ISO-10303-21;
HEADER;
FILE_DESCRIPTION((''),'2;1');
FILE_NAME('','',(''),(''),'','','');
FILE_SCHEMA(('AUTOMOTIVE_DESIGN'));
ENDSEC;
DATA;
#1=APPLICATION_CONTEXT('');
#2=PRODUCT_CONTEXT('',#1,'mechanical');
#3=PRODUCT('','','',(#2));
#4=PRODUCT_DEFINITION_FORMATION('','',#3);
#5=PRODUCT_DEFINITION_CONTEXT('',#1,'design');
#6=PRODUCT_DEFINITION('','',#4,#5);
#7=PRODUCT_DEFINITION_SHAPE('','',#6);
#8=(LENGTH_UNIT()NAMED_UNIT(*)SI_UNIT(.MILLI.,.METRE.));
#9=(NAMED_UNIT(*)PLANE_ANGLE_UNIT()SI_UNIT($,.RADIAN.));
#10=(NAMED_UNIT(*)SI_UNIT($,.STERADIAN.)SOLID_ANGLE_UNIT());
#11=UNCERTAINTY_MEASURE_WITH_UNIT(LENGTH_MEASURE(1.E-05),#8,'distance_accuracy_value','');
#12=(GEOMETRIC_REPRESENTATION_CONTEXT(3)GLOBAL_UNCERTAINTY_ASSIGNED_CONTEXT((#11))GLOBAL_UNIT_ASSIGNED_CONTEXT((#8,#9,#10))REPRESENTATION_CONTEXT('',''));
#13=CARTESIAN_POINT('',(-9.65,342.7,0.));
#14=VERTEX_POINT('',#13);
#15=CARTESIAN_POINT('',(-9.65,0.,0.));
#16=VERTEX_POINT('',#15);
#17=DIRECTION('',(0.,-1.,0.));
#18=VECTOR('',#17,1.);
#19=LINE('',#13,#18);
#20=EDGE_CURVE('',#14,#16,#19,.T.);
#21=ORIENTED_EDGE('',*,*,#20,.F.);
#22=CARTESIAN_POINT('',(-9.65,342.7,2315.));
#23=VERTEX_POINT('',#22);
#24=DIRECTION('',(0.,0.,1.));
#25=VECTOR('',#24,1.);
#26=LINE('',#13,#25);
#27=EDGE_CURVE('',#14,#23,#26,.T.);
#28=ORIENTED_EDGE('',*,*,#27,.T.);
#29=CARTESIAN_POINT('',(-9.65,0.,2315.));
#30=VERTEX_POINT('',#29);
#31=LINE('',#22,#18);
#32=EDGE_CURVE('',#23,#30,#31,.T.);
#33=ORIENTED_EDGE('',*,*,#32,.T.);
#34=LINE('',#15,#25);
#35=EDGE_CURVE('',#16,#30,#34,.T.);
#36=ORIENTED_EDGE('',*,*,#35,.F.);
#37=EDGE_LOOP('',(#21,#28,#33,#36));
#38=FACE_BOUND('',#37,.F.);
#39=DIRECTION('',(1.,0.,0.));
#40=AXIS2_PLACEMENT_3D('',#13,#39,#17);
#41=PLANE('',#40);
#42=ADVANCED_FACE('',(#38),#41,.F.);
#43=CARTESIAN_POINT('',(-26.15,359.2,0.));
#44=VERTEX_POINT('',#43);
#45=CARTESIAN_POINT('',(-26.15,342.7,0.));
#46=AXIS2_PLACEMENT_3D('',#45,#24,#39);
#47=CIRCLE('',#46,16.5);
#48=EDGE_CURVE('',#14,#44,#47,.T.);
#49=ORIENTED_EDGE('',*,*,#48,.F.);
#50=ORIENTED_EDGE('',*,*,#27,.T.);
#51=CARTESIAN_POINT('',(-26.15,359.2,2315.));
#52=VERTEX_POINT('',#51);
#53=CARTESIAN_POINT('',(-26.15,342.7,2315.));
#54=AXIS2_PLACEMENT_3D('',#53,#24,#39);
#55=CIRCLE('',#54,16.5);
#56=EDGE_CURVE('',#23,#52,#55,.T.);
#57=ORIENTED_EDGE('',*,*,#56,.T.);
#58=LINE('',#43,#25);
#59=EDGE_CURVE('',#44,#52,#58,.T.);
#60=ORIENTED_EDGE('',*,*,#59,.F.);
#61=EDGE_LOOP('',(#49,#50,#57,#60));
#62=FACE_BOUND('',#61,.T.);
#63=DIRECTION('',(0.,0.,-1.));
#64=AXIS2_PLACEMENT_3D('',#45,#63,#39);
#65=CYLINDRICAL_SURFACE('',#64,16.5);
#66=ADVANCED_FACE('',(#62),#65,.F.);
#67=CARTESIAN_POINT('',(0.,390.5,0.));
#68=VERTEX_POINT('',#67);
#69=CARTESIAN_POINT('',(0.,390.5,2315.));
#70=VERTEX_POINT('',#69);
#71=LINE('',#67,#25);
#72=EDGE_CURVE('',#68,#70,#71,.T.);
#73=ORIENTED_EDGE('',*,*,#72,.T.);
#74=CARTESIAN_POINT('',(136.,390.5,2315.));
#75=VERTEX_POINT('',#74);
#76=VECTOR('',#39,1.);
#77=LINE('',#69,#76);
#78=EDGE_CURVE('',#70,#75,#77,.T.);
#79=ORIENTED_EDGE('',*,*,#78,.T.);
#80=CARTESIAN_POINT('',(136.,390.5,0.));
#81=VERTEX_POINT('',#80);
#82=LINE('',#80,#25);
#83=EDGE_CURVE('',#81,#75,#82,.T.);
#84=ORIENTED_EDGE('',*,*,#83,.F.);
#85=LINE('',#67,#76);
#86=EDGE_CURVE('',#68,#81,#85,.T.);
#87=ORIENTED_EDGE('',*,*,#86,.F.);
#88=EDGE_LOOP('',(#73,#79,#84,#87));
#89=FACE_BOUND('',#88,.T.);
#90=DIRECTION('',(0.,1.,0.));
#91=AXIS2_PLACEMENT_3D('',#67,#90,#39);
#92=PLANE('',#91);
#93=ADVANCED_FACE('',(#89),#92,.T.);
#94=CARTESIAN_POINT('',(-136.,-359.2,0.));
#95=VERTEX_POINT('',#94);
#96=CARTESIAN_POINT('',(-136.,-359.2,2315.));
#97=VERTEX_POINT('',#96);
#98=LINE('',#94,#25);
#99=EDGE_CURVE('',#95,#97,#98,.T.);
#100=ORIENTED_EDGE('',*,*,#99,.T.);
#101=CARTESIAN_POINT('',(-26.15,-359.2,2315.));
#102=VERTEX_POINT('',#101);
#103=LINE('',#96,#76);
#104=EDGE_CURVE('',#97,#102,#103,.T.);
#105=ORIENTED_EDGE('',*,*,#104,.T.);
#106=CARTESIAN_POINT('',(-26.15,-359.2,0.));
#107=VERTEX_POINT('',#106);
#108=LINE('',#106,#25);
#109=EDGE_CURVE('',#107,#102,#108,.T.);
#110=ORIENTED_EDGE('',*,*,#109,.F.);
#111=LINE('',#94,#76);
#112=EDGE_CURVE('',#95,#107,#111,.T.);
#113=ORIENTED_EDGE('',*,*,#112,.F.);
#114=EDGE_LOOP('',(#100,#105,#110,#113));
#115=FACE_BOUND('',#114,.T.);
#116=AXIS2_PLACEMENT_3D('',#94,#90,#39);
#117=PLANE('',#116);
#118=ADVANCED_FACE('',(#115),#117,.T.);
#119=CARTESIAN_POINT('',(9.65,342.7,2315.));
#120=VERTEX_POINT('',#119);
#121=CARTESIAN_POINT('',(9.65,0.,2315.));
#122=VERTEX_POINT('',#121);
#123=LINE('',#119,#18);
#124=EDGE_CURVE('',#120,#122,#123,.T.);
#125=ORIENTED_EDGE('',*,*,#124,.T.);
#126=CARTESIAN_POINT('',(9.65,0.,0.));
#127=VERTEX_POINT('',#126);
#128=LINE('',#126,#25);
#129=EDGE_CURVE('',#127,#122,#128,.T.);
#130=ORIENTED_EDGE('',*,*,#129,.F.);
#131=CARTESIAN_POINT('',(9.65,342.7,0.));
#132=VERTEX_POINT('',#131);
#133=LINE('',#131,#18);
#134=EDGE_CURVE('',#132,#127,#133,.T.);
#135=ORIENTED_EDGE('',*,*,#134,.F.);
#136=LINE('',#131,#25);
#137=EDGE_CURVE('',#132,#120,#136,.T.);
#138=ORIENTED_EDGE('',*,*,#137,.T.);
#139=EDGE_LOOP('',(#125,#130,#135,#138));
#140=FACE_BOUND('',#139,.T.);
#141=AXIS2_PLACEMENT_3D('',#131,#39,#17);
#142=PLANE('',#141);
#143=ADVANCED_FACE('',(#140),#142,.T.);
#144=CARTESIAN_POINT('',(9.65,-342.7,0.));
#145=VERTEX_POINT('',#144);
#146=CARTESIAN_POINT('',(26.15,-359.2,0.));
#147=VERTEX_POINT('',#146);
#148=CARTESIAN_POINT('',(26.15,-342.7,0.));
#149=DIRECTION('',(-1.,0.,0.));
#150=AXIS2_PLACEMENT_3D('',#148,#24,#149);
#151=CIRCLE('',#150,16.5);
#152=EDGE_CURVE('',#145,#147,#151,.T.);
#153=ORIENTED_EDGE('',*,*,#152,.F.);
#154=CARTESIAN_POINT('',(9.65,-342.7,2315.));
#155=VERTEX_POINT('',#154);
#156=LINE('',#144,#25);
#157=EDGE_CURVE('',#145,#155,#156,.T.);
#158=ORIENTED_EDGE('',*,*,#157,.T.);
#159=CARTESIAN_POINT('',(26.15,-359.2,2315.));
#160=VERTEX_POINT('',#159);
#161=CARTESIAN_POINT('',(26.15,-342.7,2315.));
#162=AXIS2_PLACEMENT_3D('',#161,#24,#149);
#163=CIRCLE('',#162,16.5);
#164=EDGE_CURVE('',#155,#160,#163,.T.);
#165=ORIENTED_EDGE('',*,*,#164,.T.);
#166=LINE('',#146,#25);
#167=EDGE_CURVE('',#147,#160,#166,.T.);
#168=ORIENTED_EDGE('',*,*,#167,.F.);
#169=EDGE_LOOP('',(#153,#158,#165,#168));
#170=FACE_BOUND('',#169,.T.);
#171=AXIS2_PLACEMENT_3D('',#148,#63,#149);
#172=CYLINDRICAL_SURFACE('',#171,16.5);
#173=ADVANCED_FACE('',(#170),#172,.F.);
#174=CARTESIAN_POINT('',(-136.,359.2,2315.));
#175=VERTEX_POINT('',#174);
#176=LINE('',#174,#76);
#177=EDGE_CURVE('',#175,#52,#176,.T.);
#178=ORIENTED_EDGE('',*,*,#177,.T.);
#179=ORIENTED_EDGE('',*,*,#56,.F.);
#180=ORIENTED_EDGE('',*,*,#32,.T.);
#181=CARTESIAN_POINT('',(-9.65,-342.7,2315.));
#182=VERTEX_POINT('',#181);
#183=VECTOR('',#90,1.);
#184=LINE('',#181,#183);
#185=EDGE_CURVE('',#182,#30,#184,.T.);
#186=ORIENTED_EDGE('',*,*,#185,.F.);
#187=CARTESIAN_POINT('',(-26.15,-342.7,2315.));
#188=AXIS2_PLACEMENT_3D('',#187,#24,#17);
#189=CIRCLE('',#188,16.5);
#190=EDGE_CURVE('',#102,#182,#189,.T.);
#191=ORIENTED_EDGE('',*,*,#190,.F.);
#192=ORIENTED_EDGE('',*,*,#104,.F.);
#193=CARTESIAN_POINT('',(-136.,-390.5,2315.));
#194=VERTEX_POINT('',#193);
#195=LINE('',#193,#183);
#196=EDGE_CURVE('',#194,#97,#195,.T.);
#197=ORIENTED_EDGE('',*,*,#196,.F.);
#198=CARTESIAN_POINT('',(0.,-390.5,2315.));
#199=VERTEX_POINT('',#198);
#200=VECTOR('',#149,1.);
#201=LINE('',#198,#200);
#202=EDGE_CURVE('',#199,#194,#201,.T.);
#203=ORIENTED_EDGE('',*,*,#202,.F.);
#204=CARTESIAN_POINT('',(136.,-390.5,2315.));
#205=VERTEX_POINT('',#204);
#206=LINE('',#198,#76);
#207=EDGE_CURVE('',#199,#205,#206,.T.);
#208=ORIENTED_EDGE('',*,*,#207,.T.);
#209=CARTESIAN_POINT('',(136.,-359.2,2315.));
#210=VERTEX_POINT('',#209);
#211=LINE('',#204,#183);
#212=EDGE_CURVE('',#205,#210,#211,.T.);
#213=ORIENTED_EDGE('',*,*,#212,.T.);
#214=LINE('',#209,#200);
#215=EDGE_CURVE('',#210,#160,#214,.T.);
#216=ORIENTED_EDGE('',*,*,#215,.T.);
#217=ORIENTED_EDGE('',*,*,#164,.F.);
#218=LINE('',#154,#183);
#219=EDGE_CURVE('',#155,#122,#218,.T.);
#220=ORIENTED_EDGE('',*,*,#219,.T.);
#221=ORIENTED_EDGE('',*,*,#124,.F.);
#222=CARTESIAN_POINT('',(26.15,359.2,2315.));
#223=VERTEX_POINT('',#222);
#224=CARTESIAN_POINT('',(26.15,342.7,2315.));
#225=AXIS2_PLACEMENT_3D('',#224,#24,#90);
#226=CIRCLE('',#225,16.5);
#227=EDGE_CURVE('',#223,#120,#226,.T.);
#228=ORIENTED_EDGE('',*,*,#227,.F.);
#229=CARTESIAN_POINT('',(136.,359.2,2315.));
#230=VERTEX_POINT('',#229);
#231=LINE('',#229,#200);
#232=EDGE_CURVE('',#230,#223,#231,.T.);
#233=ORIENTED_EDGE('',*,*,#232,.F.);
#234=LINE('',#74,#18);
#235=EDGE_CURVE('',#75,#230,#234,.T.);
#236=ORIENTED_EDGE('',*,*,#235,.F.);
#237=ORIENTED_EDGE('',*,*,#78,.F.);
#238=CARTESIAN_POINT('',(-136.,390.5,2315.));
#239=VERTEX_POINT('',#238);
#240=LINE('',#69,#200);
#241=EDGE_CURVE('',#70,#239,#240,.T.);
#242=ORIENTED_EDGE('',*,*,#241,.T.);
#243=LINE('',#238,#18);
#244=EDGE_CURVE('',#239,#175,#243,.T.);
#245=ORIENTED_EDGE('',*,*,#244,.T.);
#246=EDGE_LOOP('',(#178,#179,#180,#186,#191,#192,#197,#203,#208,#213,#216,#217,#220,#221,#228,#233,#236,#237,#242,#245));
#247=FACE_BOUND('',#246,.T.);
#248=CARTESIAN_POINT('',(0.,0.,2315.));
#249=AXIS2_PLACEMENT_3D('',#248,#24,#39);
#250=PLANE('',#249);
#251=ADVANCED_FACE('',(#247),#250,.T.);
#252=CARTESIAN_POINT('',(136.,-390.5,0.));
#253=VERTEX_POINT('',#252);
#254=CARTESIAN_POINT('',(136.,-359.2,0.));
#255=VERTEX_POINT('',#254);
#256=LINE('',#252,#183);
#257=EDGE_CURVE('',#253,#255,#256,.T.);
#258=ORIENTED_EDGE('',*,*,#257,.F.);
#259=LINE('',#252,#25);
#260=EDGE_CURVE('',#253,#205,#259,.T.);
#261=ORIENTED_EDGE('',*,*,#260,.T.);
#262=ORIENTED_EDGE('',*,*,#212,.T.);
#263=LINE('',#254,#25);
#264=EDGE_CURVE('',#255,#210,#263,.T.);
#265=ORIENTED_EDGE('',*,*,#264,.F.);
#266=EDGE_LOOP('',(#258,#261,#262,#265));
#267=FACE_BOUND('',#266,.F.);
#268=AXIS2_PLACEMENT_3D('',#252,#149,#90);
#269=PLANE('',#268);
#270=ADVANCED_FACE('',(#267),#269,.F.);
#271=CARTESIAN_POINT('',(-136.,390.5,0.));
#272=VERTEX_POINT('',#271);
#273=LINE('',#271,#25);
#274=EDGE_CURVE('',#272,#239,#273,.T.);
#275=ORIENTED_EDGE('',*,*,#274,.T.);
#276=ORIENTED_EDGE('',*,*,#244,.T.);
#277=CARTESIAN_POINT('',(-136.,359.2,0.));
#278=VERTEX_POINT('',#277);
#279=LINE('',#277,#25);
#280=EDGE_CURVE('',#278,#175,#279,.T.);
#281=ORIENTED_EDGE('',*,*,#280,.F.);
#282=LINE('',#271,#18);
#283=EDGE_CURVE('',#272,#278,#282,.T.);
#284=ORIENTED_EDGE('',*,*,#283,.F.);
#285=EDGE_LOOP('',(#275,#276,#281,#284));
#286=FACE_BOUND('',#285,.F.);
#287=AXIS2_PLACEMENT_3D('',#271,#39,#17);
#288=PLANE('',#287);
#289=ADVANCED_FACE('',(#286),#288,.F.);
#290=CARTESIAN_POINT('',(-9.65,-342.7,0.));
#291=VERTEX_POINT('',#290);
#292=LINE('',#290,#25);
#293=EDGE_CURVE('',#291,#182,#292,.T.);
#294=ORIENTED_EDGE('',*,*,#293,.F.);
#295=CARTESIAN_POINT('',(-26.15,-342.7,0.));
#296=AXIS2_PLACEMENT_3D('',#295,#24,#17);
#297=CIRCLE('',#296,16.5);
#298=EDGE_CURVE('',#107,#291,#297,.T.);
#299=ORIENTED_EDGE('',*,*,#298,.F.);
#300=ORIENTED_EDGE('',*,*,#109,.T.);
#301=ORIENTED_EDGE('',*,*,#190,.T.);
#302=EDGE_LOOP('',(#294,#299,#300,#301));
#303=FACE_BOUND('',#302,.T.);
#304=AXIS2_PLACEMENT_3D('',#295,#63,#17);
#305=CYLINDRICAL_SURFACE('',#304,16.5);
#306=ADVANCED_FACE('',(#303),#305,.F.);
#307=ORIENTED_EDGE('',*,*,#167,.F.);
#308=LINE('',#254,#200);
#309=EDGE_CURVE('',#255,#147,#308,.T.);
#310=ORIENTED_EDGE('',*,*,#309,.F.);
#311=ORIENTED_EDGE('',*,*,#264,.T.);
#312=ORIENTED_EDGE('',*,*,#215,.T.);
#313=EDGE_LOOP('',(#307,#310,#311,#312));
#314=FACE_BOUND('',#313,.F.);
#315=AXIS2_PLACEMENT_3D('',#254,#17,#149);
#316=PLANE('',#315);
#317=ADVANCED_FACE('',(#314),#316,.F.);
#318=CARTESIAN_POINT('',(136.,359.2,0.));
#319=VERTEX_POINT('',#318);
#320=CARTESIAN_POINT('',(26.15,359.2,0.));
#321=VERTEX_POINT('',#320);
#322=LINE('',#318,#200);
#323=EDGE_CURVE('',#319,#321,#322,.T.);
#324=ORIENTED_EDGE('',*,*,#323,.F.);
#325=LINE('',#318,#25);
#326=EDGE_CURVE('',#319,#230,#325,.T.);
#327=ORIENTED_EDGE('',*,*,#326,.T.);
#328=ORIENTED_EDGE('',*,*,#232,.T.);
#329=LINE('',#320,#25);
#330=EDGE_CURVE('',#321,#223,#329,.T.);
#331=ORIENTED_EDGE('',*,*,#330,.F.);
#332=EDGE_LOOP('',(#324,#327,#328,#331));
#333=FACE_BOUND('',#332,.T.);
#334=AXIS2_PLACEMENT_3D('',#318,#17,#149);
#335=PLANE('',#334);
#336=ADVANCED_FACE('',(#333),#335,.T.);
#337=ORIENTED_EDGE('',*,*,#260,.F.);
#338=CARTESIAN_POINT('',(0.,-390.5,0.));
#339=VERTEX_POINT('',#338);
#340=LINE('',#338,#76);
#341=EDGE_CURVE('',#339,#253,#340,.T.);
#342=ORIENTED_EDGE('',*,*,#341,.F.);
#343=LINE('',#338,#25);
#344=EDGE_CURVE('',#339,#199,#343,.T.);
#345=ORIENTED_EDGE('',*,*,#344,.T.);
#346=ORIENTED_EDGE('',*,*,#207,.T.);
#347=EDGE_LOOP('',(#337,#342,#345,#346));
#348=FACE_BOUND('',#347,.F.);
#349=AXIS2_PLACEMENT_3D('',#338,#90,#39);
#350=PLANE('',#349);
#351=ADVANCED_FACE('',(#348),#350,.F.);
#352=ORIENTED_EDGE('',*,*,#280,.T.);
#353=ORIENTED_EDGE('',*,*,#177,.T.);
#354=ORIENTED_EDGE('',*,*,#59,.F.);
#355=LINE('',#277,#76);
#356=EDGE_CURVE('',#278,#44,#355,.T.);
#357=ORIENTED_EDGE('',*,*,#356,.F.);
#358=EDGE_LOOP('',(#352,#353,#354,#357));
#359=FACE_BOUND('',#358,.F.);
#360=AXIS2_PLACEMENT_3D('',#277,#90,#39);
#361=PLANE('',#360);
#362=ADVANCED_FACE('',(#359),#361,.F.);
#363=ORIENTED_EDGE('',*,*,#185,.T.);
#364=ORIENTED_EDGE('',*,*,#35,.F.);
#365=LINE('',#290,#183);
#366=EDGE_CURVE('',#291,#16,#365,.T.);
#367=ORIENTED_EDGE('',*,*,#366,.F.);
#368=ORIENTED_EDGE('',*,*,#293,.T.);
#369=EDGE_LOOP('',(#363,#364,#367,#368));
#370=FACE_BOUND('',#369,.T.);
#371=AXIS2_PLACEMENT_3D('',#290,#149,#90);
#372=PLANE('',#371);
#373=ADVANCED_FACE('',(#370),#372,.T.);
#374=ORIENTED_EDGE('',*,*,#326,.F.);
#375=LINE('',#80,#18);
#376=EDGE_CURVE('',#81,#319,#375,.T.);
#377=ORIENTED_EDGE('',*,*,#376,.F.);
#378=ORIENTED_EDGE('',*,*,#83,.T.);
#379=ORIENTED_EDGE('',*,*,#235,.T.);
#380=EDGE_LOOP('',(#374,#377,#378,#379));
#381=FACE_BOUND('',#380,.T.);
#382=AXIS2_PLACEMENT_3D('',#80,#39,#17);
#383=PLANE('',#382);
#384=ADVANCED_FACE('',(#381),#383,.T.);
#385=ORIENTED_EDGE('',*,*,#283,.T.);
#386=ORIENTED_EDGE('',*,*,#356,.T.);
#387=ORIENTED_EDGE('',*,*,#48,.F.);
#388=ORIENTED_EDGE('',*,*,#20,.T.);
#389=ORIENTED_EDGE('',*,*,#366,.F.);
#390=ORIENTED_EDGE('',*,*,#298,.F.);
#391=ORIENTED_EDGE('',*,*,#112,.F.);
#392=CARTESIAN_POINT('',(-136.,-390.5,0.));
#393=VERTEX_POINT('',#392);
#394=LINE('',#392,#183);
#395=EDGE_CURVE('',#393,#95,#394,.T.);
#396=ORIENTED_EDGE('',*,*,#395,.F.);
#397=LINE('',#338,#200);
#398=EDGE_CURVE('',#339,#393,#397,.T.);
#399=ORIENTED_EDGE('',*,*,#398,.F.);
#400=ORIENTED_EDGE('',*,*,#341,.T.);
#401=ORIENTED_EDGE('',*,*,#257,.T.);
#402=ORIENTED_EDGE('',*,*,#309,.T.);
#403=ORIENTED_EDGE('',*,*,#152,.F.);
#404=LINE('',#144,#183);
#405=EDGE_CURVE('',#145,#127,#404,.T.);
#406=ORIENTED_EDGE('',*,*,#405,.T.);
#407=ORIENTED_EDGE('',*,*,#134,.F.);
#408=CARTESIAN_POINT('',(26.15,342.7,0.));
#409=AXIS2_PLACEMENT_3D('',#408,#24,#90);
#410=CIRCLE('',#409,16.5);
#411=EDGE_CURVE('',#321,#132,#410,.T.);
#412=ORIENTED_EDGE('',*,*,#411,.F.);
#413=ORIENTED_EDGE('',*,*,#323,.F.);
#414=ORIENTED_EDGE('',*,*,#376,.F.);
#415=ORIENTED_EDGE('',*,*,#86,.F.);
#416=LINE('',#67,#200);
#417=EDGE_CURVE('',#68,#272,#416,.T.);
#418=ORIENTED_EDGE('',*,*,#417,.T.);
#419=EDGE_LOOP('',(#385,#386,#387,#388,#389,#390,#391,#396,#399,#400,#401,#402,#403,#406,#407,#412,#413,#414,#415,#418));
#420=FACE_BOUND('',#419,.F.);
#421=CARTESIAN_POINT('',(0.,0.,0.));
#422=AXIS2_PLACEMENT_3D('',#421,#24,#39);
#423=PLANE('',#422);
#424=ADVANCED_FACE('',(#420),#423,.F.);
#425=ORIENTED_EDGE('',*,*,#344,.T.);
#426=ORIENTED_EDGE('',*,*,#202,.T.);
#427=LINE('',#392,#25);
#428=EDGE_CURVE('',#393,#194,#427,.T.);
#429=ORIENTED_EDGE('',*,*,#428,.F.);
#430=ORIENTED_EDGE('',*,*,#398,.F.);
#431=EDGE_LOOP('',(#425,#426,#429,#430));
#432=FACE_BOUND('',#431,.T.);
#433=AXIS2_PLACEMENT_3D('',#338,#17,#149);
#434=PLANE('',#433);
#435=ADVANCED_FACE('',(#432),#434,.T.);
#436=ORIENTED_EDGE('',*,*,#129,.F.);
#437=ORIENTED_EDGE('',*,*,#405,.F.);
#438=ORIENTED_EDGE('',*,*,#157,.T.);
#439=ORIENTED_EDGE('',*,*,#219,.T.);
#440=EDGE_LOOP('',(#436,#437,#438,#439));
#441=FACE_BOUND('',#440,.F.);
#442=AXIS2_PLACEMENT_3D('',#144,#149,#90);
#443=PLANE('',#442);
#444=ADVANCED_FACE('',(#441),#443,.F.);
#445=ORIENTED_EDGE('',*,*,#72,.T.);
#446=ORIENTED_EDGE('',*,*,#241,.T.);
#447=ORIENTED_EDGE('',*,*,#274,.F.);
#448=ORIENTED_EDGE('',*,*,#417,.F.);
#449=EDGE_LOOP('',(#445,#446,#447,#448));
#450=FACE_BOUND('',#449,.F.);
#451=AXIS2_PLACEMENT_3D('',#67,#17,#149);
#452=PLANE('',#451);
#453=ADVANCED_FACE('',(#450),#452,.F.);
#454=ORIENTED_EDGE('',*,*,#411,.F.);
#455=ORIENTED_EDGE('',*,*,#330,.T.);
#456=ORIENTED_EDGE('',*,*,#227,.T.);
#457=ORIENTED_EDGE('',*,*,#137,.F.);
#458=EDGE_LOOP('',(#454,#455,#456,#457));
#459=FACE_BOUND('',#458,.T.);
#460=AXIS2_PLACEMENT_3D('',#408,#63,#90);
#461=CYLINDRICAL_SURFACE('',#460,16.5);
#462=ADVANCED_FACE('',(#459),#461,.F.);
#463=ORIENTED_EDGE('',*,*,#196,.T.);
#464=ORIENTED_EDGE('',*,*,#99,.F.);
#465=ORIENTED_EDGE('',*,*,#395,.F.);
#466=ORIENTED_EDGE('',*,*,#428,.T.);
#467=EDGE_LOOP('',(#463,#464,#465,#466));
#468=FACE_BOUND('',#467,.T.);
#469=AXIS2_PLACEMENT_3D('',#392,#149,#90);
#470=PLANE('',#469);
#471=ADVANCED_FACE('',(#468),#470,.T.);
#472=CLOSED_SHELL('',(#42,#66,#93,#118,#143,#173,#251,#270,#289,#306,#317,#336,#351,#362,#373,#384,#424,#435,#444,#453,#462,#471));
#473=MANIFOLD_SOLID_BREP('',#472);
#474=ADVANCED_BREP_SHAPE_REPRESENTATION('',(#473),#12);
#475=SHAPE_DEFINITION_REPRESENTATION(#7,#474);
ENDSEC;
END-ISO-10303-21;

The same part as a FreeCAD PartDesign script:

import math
import FreeCAD as App
import Part
import Sketcher
Q = App.Units.Quantity

doc = App.newDocument("Part")
params = doc.addObject("Spreadsheet::Sheet", "Params")
for row, (alias, value) in enumerate([
    ("sketch1_radius", "16.5 mm"),
    ("sketch1_height", "31.3 mm"),
    ("pad1_length", "2315 mm"),
], start=1):
    params.set(f"A{row}", alias)
    params.set(f"B{row}", "=" + value)
    params.setAlias(f"B{row}", alias)

body = doc.addObject("PartDesign::Body", "Body")

# Sketch on XY plane
sketch1 = body.newObject("Sketcher::SketchObject", "Sketch")
sketch1.AttachmentSupport = (doc.getObject("XY_Plane"), [""])
sketch1.MapMode = "FlatFace"
sketch1.addGeometry([
    Part.LineSegment(App.Vector(-136, -359, 0), App.Vector(-136, -390, 0)),  # 0
    Part.LineSegment(App.Vector(-136, -390, 0), App.Vector(136, -390, 0)),  # 1
    Part.LineSegment(App.Vector(136, -390, 0), App.Vector(136, -359, 0)),  # 2
    Part.LineSegment(App.Vector(136, -359, 0), App.Vector(26, -359, 0)),  # 3
    Part.ArcOfCircle(Part.Circle(App.Vector(26, -343, 0), App.Vector(0, 0, 1), 16), math.radians(180), math.radians(270)),  # 4
    Part.LineSegment(App.Vector(10, -343, 0), App.Vector(10, 343, 0)),  # 5
    Part.ArcOfCircle(Part.Circle(App.Vector(26, 343, 0), App.Vector(0, 0, 1), 16), math.radians(90), math.radians(180)),  # 6
    Part.LineSegment(App.Vector(26, 359, 0), App.Vector(136, 359, 0)),  # 7
    Part.LineSegment(App.Vector(136, 359, 0), App.Vector(136, 390, 0)),  # 8
    Part.LineSegment(App.Vector(136, 390, 0), App.Vector(-136, 390, 0)),  # 9
    Part.LineSegment(App.Vector(-136, 390, 0), App.Vector(-136, 359, 0)),  # 10
    Part.LineSegment(App.Vector(-136, 359, 0), App.Vector(-26, 359, 0)),  # 11
    Part.ArcOfCircle(Part.Circle(App.Vector(-26, 343, 0), App.Vector(0, 0, 1), 16), math.radians(0), math.radians(90)),  # 12
    Part.LineSegment(App.Vector(-10, 343, 0), App.Vector(-10, -343, 0)),  # 13
    Part.ArcOfCircle(Part.Circle(App.Vector(-26, -343, 0), App.Vector(0, 0, 1), 16), math.radians(-90), math.radians(0)),  # 14
    Part.LineSegment(App.Vector(-26, -359, 0), App.Vector(-136, -359, 0)),  # 15
], False)
sketch1.addConstraint([
    Sketcher.Constraint("Coincident", 0, 2, 1, 1),
    Sketcher.Constraint("Coincident", 1, 2, 2, 1),
    Sketcher.Constraint("Coincident", 2, 2, 3, 1),
    Sketcher.Constraint("Tangent", 3, 2, 4, 2),
    Sketcher.Constraint("Tangent", 4, 1, 5, 1),
    Sketcher.Constraint("Tangent", 5, 2, 6, 2),
    Sketcher.Constraint("Tangent", 6, 1, 7, 1),
    Sketcher.Constraint("Coincident", 7, 2, 8, 1),
    Sketcher.Constraint("Coincident", 8, 2, 9, 1),
    Sketcher.Constraint("Coincident", 9, 2, 10, 1),
    Sketcher.Constraint("Coincident", 10, 2, 11, 1),
    Sketcher.Constraint("Tangent", 11, 2, 12, 2),
    Sketcher.Constraint("Tangent", 12, 1, 13, 1),
    Sketcher.Constraint("Tangent", 13, 2, 14, 2),
    Sketcher.Constraint("Tangent", 14, 1, 15, 1),
    Sketcher.Constraint("Coincident", 15, 2, 0, 1),
    Sketcher.Constraint("Vertical", 0),
    Sketcher.Constraint("Horizontal", 1),
    Sketcher.Constraint("Vertical", 2),
    Sketcher.Constraint("Horizontal", 3),
    Sketcher.Constraint("Vertical", 5),
    Sketcher.Constraint("Horizontal", 7),
    Sketcher.Constraint("Vertical", 8),
    Sketcher.Constraint("Horizontal", 9),
    Sketcher.Constraint("Vertical", 10),
    Sketcher.Constraint("Horizontal", 11),
    Sketcher.Constraint("Vertical", 13),
    Sketcher.Constraint("Horizontal", 15),
    Sketcher.Constraint("Equal", 4, 6),
    Sketcher.Constraint("Equal", 6, 12),
    Sketcher.Constraint("Equal", 12, 14),
    Sketcher.Constraint("Symmetric", 4, 3, 12, 3, -1, 1),
    Sketcher.Constraint("Symmetric", 0, 2, 8, 2, -1, 1),
    Sketcher.Constraint("Symmetric", 7, 2, 10, 2, -2),
    Sketcher.Constraint("Symmetric", 2, 2, 15, 2, -2),
    Sketcher.Constraint("Radius", 4, Q("16.5 mm")),
    Sketcher.Constraint("DistanceY", 0, 2, 0, 1, Q("31.3 mm")),
    Sketcher.Constraint("DistanceX", 0, 2, -1, 1, Q("136 mm")),
    Sketcher.Constraint("DistanceY", 0, 2, -1, 1, Q("390.5 mm")),
    Sketcher.Constraint("DistanceX", -1, 1, 4, 1, Q("9.65 mm")),
])
sketch1.setExpression("Constraints[35]", "Params.sketch1_radius")
sketch1.setExpression("Constraints[36]", "Params.sketch1_height")
pad1 = body.newObject("PartDesign::Pad", "Pad")
pad1.Profile = sketch1
pad1.setExpression("Length", "Params.pad1_length")

doc.recompute()
